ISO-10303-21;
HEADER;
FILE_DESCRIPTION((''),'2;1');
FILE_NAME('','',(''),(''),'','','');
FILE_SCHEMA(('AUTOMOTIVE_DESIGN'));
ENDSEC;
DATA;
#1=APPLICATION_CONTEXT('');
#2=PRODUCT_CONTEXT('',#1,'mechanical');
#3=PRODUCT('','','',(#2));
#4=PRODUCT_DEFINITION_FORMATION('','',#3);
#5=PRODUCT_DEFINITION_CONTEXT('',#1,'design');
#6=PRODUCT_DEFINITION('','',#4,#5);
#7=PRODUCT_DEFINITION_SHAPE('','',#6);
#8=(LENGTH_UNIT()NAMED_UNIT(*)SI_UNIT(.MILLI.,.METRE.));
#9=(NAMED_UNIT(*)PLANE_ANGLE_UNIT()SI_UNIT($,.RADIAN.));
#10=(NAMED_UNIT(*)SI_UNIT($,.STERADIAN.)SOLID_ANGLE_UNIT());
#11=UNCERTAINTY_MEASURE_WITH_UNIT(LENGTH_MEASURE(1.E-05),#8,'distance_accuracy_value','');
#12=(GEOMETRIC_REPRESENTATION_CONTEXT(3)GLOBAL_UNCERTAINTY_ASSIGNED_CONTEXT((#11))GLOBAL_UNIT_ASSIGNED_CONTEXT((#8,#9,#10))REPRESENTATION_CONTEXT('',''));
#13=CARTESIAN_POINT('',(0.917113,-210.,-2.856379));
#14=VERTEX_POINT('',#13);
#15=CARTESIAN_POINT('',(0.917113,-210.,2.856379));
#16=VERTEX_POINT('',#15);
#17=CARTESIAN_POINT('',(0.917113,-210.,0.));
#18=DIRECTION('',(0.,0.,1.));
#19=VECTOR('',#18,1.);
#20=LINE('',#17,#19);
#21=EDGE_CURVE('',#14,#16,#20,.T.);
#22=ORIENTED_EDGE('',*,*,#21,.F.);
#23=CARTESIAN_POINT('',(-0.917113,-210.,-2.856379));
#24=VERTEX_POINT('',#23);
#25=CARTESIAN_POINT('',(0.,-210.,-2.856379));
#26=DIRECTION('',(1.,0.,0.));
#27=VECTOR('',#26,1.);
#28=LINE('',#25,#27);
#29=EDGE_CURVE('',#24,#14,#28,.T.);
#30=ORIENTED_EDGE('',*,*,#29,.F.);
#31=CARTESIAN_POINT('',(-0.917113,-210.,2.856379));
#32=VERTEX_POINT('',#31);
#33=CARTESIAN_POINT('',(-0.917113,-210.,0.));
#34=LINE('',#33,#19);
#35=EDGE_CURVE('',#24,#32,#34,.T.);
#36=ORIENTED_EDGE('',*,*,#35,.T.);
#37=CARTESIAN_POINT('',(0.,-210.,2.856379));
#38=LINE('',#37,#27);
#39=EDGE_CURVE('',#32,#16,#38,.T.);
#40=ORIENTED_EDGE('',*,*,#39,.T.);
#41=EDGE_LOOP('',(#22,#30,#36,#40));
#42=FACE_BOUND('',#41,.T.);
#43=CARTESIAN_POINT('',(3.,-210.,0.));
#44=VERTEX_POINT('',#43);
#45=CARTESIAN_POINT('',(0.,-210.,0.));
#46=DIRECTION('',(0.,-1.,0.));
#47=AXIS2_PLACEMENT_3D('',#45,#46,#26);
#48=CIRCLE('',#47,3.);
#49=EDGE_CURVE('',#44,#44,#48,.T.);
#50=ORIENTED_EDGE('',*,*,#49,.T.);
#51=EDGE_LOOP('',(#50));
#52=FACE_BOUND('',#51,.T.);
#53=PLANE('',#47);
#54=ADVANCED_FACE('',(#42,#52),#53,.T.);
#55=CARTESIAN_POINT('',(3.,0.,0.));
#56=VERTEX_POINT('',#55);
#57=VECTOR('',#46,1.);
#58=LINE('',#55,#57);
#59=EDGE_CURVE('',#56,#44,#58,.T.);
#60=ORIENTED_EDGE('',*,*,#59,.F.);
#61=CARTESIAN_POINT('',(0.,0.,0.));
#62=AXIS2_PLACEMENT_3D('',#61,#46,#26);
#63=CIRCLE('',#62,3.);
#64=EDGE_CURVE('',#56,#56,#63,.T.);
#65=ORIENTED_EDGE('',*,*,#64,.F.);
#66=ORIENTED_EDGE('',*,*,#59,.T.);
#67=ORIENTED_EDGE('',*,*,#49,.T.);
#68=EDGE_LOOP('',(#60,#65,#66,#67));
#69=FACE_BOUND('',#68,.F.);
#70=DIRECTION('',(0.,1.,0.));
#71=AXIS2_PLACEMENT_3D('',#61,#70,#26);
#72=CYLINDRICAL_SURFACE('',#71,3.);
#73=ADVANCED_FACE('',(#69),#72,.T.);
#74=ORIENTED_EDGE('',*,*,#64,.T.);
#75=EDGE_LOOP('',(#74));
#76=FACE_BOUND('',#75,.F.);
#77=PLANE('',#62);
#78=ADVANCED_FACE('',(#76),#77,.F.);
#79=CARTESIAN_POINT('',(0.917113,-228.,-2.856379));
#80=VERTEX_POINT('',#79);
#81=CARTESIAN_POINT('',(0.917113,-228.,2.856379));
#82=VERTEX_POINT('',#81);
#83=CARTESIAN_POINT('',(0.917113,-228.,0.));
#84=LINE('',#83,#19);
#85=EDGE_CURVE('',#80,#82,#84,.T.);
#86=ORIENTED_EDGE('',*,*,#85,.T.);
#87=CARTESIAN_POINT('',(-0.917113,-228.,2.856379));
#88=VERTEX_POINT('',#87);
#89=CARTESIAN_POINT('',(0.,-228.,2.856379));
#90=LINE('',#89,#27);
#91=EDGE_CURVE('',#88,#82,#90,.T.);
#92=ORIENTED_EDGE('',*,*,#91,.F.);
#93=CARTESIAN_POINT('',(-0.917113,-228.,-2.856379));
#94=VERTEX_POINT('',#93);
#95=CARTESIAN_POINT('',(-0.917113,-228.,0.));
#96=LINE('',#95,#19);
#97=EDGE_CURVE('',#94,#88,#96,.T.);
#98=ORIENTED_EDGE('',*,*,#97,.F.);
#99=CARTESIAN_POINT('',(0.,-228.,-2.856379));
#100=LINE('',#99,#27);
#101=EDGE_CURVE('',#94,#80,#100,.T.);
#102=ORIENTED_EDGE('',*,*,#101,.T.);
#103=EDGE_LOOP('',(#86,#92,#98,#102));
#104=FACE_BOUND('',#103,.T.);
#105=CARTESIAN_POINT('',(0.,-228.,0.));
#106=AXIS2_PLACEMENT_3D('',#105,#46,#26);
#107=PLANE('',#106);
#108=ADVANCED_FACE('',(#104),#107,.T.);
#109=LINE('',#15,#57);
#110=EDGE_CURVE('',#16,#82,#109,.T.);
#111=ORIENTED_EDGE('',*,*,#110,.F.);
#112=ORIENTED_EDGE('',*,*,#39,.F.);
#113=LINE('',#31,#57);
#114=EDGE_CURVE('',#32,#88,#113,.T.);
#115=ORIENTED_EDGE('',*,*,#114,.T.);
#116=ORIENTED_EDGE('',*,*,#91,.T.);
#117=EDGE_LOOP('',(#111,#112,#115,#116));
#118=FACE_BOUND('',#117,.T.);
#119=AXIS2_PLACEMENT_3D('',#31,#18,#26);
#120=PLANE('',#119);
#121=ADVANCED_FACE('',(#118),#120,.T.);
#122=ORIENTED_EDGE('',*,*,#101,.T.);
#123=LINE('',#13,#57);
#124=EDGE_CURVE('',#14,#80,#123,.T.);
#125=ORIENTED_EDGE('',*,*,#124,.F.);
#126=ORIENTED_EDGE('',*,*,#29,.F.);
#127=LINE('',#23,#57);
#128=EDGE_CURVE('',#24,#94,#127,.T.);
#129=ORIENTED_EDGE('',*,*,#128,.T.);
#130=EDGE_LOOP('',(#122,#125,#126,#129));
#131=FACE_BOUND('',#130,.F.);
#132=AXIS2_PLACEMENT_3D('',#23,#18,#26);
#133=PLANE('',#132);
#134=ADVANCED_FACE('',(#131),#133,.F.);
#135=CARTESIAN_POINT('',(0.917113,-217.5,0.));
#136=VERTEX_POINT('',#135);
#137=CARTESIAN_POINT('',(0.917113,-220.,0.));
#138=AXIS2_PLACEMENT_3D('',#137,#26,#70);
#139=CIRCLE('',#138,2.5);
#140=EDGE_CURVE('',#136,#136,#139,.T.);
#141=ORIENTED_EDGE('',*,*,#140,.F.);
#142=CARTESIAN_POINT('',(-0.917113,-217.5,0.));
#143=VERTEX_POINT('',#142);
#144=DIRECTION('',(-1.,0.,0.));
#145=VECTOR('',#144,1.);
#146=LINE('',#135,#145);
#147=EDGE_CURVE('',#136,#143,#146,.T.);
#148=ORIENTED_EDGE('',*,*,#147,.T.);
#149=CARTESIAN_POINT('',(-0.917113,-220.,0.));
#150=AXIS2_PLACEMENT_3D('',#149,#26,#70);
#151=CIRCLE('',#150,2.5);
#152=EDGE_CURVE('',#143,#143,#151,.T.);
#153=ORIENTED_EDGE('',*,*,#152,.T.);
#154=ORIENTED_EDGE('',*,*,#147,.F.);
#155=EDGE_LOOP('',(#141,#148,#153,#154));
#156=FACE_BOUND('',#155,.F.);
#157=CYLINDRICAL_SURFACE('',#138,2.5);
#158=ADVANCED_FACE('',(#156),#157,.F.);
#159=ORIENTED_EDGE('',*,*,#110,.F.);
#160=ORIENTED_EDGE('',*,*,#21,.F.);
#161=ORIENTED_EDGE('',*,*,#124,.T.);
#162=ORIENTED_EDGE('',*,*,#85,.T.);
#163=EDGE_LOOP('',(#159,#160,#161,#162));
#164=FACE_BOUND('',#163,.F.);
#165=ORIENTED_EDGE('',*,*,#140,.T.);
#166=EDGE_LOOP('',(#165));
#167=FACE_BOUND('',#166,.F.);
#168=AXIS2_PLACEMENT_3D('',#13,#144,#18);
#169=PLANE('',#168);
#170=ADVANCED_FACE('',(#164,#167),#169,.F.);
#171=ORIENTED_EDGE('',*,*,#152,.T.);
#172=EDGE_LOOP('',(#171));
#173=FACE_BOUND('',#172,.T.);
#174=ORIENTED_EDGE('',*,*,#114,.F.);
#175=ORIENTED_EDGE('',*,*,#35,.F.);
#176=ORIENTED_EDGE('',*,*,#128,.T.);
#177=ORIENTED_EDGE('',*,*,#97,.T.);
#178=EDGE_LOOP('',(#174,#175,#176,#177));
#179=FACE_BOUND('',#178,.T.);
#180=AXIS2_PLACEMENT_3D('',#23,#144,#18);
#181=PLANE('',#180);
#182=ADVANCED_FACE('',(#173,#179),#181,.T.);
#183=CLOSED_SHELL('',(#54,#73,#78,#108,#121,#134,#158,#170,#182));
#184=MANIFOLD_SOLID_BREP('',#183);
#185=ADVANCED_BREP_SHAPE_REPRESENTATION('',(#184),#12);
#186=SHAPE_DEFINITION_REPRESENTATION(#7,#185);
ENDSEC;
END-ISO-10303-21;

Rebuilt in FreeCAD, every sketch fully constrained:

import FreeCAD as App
import Part
import Sketcher


def add_polygon(sketch, points):
    """Adds a closed chain of lines whose ends are joined by coincident constraints."""
    first, n = sketch.GeometryCount, len(points)
    for a, b in zip(points, points[1:] + points[:1]):
        sketch.addGeometry(Part.LineSegment(App.Vector(*a, 0), App.Vector(*b, 0)), False)
    for i in range(n):
        sketch.addConstraint(Sketcher.Constraint("Coincident", first + i, 2, first + (i + 1) % n, 1))

doc = App.newDocument("Part")
body = doc.addObject("PartDesign::Body", "Body")

# Sketch on XZ plane
sketch1 = body.newObject("Sketcher::SketchObject", "Sketch")
sketch1.AttachmentSupport = (doc.getObject("XZ_Plane"), [""])
sketch1.MapMode = "FlatFace"
sketch1.addGeometry(Part.Circle(App.Vector(0, 0, 0), App.Vector(0, 0, 1), 3), False)
sketch1.addConstraint([
    Sketcher.Constraint("Coincident", 0, 3, -1, 1),
    Sketcher.Constraint("Diameter", 0, 6.0),
])
pad1 = body.newObject("PartDesign::Pad", "Pad")
pad1.Profile = sketch1
pad1.Length = 210

# Sketch on XZ plane
sketch2 = body.newObject("Sketcher::SketchObject", "Sketch001")
sketch2.AttachmentSupport = (doc.getObject("XZ_Plane"), [""])
sketch2.MapMode = "FlatFace"
sketch2.AttachmentOffset = App.Placement(App.Vector(0, 0, 210), App.Rotation())
add_polygon(sketch2, [(-0.9, 2.9), (-0.9, -2.9), (0.9, -2.9), (0.9, 2.9)])  # lines 0-3
sketch2.addConstraint([
    Sketcher.Constraint("Vertical", 0),
    Sketcher.Constraint("Horizontal", 1),
    Sketcher.Constraint("Vertical", 2),
    Sketcher.Constraint("Horizontal", 3),
    Sketcher.Constraint("Symmetric", 0, 2, 2, 2, -1, 1),
    Sketcher.Constraint("DistanceX", 1, 1, 1, 2, 1.834226),
    Sketcher.Constraint("DistanceY", 0, 2, 0, 1, 5.712758),
])
pad2 = body.newObject("PartDesign::Pad", "Pad001")
pad2.Profile = sketch2
pad2.Length = 18

# Sketch on YZ plane
sketch3 = body.newObject("Sketcher::SketchObject", "Sketch002")
sketch3.AttachmentSupport = (doc.getObject("YZ_Plane"), [""])
sketch3.MapMode = "FlatFace"
sketch3.AttachmentOffset = App.Placement(App.Vector(0, 0, 0.917113), App.Rotation())
sketch3.addGeometry(Part.Circle(App.Vector(-220, 0, 0), App.Vector(0, 0, 1), 2.5), False)
sketch3.addConstraint([
    Sketcher.Constraint("PointOnObject", 0, 3, -1),
    Sketcher.Constraint("Diameter", 0, 5.0),
    Sketcher.Constraint("DistanceX", 0, 3, -1, 1, 220.0),
])
pocket1 = body.newObject("PartDesign::Pocket", "Pocket")
pocket1.Profile = sketch3
pocket1.Type = "ThroughAll"

doc.recompute()
